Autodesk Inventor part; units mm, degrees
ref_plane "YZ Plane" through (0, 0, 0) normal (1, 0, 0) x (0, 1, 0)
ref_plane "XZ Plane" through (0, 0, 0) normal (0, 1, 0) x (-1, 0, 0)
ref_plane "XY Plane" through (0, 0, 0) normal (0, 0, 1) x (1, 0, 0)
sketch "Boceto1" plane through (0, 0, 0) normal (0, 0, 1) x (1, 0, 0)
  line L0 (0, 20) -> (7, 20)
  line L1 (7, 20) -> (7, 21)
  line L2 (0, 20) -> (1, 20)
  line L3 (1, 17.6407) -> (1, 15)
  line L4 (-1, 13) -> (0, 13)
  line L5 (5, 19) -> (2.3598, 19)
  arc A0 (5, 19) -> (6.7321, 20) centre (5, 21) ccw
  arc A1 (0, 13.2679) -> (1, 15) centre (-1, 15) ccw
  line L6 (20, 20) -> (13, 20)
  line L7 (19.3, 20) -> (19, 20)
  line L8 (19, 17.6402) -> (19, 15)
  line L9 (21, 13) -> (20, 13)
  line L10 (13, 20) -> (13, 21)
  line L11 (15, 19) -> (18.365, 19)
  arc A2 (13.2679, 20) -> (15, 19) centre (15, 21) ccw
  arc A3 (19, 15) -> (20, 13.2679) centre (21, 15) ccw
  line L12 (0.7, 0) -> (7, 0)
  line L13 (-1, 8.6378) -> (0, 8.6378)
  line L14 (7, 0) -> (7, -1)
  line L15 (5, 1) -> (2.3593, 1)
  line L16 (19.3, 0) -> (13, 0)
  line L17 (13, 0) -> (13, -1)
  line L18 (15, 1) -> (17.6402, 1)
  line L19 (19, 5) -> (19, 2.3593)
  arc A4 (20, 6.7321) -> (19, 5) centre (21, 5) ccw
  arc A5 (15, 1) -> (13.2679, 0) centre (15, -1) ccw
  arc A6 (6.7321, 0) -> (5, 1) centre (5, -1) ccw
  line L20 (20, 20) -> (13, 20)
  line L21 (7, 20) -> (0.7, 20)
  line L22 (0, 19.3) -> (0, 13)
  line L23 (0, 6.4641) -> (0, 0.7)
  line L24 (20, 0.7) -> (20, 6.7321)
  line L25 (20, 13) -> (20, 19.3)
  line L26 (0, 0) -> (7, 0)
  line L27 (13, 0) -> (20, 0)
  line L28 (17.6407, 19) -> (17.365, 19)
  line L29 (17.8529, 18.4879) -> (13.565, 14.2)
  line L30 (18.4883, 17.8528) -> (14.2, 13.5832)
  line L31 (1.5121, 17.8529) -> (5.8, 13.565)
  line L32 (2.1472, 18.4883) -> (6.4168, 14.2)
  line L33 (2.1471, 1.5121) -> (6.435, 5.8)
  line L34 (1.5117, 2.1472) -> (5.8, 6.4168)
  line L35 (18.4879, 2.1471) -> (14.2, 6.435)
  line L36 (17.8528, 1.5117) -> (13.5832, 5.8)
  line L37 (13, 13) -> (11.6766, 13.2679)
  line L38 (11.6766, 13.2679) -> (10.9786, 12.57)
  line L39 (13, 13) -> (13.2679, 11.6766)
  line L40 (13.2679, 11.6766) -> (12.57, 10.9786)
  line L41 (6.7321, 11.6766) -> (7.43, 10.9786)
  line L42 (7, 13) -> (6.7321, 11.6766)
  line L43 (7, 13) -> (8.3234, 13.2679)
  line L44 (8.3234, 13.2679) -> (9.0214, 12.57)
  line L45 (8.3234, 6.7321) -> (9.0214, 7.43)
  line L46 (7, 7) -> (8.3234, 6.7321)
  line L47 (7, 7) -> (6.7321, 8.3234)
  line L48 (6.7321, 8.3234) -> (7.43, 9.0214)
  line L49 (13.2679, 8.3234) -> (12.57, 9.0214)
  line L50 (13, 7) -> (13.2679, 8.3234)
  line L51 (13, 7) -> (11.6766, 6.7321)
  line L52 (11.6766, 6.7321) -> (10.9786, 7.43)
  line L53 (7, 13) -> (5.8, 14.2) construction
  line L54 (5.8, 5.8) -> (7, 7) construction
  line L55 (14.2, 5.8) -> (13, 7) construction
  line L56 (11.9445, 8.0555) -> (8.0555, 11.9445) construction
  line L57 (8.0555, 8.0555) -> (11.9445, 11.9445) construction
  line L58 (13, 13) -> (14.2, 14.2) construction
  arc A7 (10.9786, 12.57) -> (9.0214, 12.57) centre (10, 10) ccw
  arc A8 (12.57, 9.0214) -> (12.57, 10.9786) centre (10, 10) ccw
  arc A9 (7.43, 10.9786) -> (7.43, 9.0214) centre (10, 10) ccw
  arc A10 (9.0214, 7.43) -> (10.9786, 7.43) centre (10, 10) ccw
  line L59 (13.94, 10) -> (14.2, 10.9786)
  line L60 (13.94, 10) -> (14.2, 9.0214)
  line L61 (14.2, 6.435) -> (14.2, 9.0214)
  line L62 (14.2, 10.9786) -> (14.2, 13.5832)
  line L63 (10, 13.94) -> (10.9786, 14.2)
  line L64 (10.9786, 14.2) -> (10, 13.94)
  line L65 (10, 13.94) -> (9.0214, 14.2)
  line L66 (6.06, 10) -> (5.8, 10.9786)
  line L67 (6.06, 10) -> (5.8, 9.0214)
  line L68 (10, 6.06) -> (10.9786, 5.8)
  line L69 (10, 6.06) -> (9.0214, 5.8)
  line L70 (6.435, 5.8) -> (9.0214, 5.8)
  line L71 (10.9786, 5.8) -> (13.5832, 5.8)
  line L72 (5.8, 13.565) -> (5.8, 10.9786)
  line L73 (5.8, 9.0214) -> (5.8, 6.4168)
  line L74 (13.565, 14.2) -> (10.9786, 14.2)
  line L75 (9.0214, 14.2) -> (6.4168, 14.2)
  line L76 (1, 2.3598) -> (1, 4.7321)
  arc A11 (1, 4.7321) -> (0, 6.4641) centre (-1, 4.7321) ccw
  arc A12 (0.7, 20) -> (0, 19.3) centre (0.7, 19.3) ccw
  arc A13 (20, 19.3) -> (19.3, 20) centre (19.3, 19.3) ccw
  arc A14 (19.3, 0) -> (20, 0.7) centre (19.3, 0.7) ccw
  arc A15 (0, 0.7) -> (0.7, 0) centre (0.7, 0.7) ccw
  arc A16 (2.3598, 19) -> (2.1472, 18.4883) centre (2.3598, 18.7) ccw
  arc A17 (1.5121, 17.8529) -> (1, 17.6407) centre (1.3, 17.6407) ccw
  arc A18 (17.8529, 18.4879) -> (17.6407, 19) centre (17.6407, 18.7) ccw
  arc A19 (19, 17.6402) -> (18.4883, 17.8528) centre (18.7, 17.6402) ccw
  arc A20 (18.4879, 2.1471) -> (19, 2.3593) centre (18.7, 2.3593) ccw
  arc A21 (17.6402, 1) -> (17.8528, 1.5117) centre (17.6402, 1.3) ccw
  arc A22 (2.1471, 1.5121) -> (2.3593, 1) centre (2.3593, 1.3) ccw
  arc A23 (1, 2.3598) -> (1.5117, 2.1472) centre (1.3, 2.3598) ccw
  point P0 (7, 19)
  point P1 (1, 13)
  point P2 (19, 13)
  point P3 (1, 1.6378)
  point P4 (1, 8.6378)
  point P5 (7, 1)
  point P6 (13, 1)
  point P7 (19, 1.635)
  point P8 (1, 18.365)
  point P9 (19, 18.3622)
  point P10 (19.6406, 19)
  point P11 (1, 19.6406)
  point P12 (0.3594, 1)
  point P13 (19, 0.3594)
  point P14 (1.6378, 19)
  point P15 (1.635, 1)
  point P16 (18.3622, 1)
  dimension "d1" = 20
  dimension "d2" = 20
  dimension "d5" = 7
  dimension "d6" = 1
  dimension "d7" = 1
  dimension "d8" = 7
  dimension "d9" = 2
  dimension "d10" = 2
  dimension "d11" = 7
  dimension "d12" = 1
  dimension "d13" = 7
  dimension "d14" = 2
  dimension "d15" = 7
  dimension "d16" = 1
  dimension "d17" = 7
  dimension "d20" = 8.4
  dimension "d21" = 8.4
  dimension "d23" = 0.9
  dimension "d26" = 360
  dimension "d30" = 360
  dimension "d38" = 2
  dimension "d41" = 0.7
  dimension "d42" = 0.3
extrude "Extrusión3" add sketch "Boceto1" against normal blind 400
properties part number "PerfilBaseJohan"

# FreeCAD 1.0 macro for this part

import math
import FreeCAD as App
import Part
import Sketcher
from FreeCAD import Vector
Q = App.Units.Quantity

doc = App.newDocument("Part")
params = doc.addObject("Spreadsheet::Sheet", "Params")
for row, (alias, value) in enumerate([
    ("sketch1_radius", "2 mm"),
    ("sketch1_radius2", "0.7 mm"),
    ("sketch1_radius3", "0.3 mm"),
    ("sketch1_radius4", "2.75 mm"),
    ("pad1_length", "400 mm"),
], start=1):
    params.set(f"A{row}", alias)
    params.set(f"B{row}", "=" + value)
    params.setAlias(f"B{row}", alias)

body = doc.addObject("PartDesign::Body", "Body")

# Sketch on XY plane
sketch1 = doc.addObject("Sketcher::SketchObject", "Sketch")
body.addObject(sketch1)
sketch1.AttachmentSupport = (doc.XY_Plane, [""])
sketch1.MapMode = "FlatFace"
sketch1.addGeometry([
    Part.LineSegment(Vector(6.73, 20, 0), Vector(0.7, 20, 0)),  # 0
    Part.ArcOfCircle(Part.Circle(Vector(0.7, 19.3, 0), Vector(0, 0, 1), 0.7), math.radians(90), math.radians(180)),  # 1
    Part.LineSegment(Vector(0, 19.3, 0), Vector(0, 13.27, 0)),  # 2
    Part.ArcOfCircle(Part.Circle(Vector(-1, 15, 0), Vector(0, 0, 1), 2), math.radians(-60), math.radians(0)),  # 3
    Part.LineSegment(Vector(1, 15, 0), Vector(1, 17.64, 0)),  # 4
    Part.ArcOfCircle(Part.Circle(Vector(1.3, 17.64, 0), Vector(0, 0, 1), 0.3), math.radians(45), math.radians(180)),  # 5
    Part.LineSegment(Vector(1.51, 17.85, 0), Vector(5.8, 13.56, 0)),  # 6
    Part.LineSegment(Vector(5.8, 13.56, 0), Vector(5.8, 10.98, 0)),  # 7
    Part.LineSegment(Vector(5.8, 10.98, 0), Vector(6.06, 10, 0)),  # 8
    Part.LineSegment(Vector(6.06, 10, 0), Vector(5.8, 9.02, 0)),  # 9
    Part.LineSegment(Vector(5.8, 9.02, 0), Vector(5.8, 6.42, 0)),  # 10
    Part.LineSegment(Vector(5.8, 6.42, 0), Vector(1.51, 2.15, 0)),  # 11
    Part.ArcOfCircle(Part.Circle(Vector(1.3, 2.36, 0), Vector(0, 0, 1), 0.3), math.radians(180), math.radians(315)),  # 12
    Part.LineSegment(Vector(1, 2.36, 0), Vector(1, 4.73, 0)),  # 13
    Part.ArcOfCircle(Part.Circle(Vector(-1, 4.73, 0), Vector(0, 0, 1), 2), math.radians(0), math.radians(60)),  # 14
    Part.LineSegment(Vector(0, 6.46, 0), Vector(0, 0.7, 0)),  # 15
    Part.ArcOfCircle(Part.Circle(Vector(0.7, 0.7, 0), Vector(0, 0, 1), 0.7), math.radians(180), math.radians(270)),  # 16
    Part.LineSegment(Vector(0.7, 0, 0), Vector(6.73, 0, 0)),  # 17
    Part.ArcOfCircle(Part.Circle(Vector(5, -1, 0), Vector(0, 0, 1), 2), math.radians(30), math.radians(90)),  # 18
    Part.LineSegment(Vector(5, 1, 0), Vector(2.36, 1, 0)),  # 19
    Part.ArcOfCircle(Part.Circle(Vector(2.36, 1.3, 0), Vector(0, 0, 1), 0.3), math.radians(135), math.radians(270)),  # 20
    Part.LineSegment(Vector(2.15, 1.51, 0), Vector(6.43, 5.8, 0)),  # 21
    Part.LineSegment(Vector(6.43, 5.8, 0), Vector(9.02, 5.8, 0)),  # 22
    Part.LineSegment(Vector(9.02, 5.8, 0), Vector(10, 6.06, 0)),  # 23
    Part.LineSegment(Vector(10, 6.06, 0), Vector(10.98, 5.8, 0)),  # 24
    Part.LineSegment(Vector(10.98, 5.8, 0), Vector(13.58, 5.8, 0)),  # 25
    Part.LineSegment(Vector(13.58, 5.8, 0), Vector(17.85, 1.51, 0)),  # 26
    Part.ArcOfCircle(Part.Circle(Vector(17.64, 1.3, 0), Vector(0, 0, 1), 0.3), math.radians(-90), math.radians(45)),  # 27
    Part.LineSegment(Vector(17.64, 1, 0), Vector(15, 1, 0)),  # 28
    Part.ArcOfCircle(Part.Circle(Vector(15, -1, 0), Vector(0, 0, 1), 2), math.radians(90), math.radians(150)),  # 29
    Part.LineSegment(Vector(13.27, 0, 0), Vector(19.3, 0, 0)),  # 30
    Part.ArcOfCircle(Part.Circle(Vector(19.3, 0.7, 0), Vector(0, 0, 1), 0.7), math.radians(-90), math.radians(0)),  # 31
    Part.LineSegment(Vector(20, 0.7, 0), Vector(20, 6.73, 0)),  # 32
    Part.ArcOfCircle(Part.Circle(Vector(21, 5, 0), Vector(0, 0, 1), 2), math.radians(120), math.radians(180)),  # 33
    Part.LineSegment(Vector(19, 5, 0), Vector(19, 2.36, 0)),  # 34
    Part.ArcOfCircle(Part.Circle(Vector(18.7, 2.36, 0), Vector(0, 0, 1), 0.3), math.radians(-135), math.radians(0)),  # 35
    Part.LineSegment(Vector(18.49, 2.15, 0), Vector(14.2, 6.43, 0)),  # 36
    Part.LineSegment(Vector(14.2, 6.43, 0), Vector(14.2, 9.02, 0)),  # 37
    Part.LineSegment(Vector(14.2, 9.02, 0), Vector(13.94, 10, 0)),  # 38
    Part.LineSegment(Vector(13.94, 10, 0), Vector(14.2, 10.98, 0)),  # 39
    Part.LineSegment(Vector(14.2, 10.98, 0), Vector(14.2, 13.58, 0)),  # 40
    Part.LineSegment(Vector(14.2, 13.58, 0), Vector(18.49, 17.85, 0)),  # 41
    Part.ArcOfCircle(Part.Circle(Vector(18.7, 17.64, 0), Vector(0, 0, 1), 0.3), math.radians(0), math.radians(135)),  # 42
    Part.LineSegment(Vector(19, 17.64, 0), Vector(19, 15, 0)),  # 43
    Part.ArcOfCircle(Part.Circle(Vector(21, 15, 0), Vector(0, 0, 1), 2), math.radians(180), math.radians(240)),  # 44
    Part.LineSegment(Vector(20, 13.27, 0), Vector(20, 19.3, 0)),  # 45
    Part.ArcOfCircle(Part.Circle(Vector(19.3, 19.3, 0), Vector(0, 0, 1), 0.7), math.radians(0), math.radians(90)),  # 46
    Part.LineSegment(Vector(19.3, 20, 0), Vector(13.27, 20, 0)),  # 47
    Part.ArcOfCircle(Part.Circle(Vector(15, 21, 0), Vector(0, 0, 1), 2), math.radians(-150), math.radians(-90)),  # 48
    Part.LineSegment(Vector(15, 19, 0), Vector(17.64, 19, 0)),  # 49
    Part.ArcOfCircle(Part.Circle(Vector(17.64, 18.7, 0), Vector(0, 0, 1), 0.3), math.radians(-45), math.radians(90)),  # 50
    Part.LineSegment(Vector(17.85, 18.49, 0), Vector(13.56, 14.2, 0)),  # 51
    Part.LineSegment(Vector(13.56, 14.2, 0), Vector(10.98, 14.2, 0)),  # 52
    Part.LineSegment(Vector(10.98, 14.2, 0), Vector(10, 13.94, 0)),  # 53
    Part.LineSegment(Vector(10, 13.94, 0), Vector(9.02, 14.2, 0)),  # 54
    Part.LineSegment(Vector(9.02, 14.2, 0), Vector(6.42, 14.2, 0)),  # 55
    Part.LineSegment(Vector(6.42, 14.2, 0), Vector(2.15, 18.49, 0)),  # 56
    Part.ArcOfCircle(Part.Circle(Vector(2.36, 18.7, 0), Vector(0, 0, 1), 0.3), math.radians(90), math.radians(225)),  # 57
    Part.LineSegment(Vector(2.36, 19, 0), Vector(5, 19, 0)),  # 58
    Part.ArcOfCircle(Part.Circle(Vector(5, 21, 0), Vector(0, 0, 1), 2), math.radians(-90), math.radians(-30)),  # 59
    Part.LineSegment(Vector(11.68, 13.27, 0), Vector(13, 13, 0)),  # 60
    Part.LineSegment(Vector(13, 13, 0), Vector(13.27, 11.68, 0)),  # 61
    Part.LineSegment(Vector(13.27, 11.68, 0), Vector(12.57, 10.98, 0)),  # 62
    Part.ArcOfCircle(Part.Circle(Vector(10, 10, 0), Vector(0, 0, 1), 2.75), math.radians(-21), math.radians(21)),  # 63
    Part.LineSegment(Vector(12.57, 9.02, 0), Vector(13.27, 8.32, 0)),  # 64
    Part.LineSegment(Vector(13.27, 8.32, 0), Vector(13, 7, 0)),  # 65
    Part.LineSegment(Vector(13, 7, 0), Vector(11.68, 6.73, 0)),  # 66
    Part.LineSegment(Vector(11.68, 6.73, 0), Vector(10.98, 7.43, 0)),  # 67
    Part.ArcOfCircle(Part.Circle(Vector(10, 10, 0), Vector(0, 0, 1), 2.75), math.radians(-111), math.radians(-69)),  # 68
    Part.LineSegment(Vector(9.02, 7.43, 0), Vector(8.32, 6.73, 0)),  # 69
    Part.LineSegment(Vector(8.32, 6.73, 0), Vector(7, 7, 0)),  # 70
    Part.LineSegment(Vector(7, 7, 0), Vector(6.73, 8.32, 0)),  # 71
    Part.LineSegment(Vector(6.73, 8.32, 0), Vector(7.43, 9.02, 0)),  # 72
    Part.ArcOfCircle(Part.Circle(Vector(10, 10, 0), Vector(0, 0, 1), 2.75), math.radians(159), math.radians(201)),  # 73
    Part.LineSegment(Vector(7.43, 10.98, 0), Vector(6.73, 11.68, 0)),  # 74
    Part.LineSegment(Vector(6.73, 11.68, 0), Vector(7, 13, 0)),  # 75
    Part.LineSegment(Vector(7, 13, 0), Vector(8.32, 13.27, 0)),  # 76
    Part.LineSegment(Vector(8.32, 13.27, 0), Vector(9.02, 12.57, 0)),  # 77
    Part.ArcOfCircle(Part.Circle(Vector(10, 10, 0), Vector(0, 0, 1), 2.75), math.radians(69), math.radians(111)),  # 78
    Part.LineSegment(Vector(10.98, 12.57, 0), Vector(11.68, 13.27, 0)),  # 79
], False)
sketch1.addConstraint([
    Sketcher.Constraint("Tangent", 0, 2, 1, 1),
    Sketcher.Constraint("Tangent", 1, 2, 2, 1),
    Sketcher.Constraint("Coincident", 2, 2, 3, 1),
    Sketcher.Constraint("Tangent", 3, 2, 4, 1),
    Sketcher.Constraint("Tangent", 4, 2, 5, 2),
    Sketcher.Constraint("Tangent", 5, 1, 6, 1),
    Sketcher.Constraint("Coincident", 6, 2, 7, 1),
    Sketcher.Constraint("Coincident", 7, 2, 8, 1),
    Sketcher.Constraint("Coincident", 8, 2, 9, 1),
    Sketcher.Constraint("Coincident", 9, 2, 10, 1),
    Sketcher.Constraint("Coincident", 10, 2, 11, 1),
    Sketcher.Constraint("Tangent", 11, 2, 12, 2),
    Sketcher.Constraint("Tangent", 12, 1, 13, 1),
    Sketcher.Constraint("Tangent", 13, 2, 14, 1),
    Sketcher.Constraint("Coincident", 14, 2, 15, 1),
    Sketcher.Constraint("Tangent", 15, 2, 16, 1),
    Sketcher.Constraint("Tangent", 16, 2, 17, 1),
    Sketcher.Constraint("Coincident", 17, 2, 18, 1),
    Sketcher.Constraint("Tangent", 18, 2, 19, 1),
    Sketcher.Constraint("Tangent", 19, 2, 20, 2),
    Sketcher.Constraint("Tangent", 20, 1, 21, 1),
    Sketcher.Constraint("Coincident", 21, 2, 22, 1),
    Sketcher.Constraint("Coincident", 22, 2, 23, 1),
    Sketcher.Constraint("Coincident", 23, 2, 24, 1),
    Sketcher.Constraint("Coincident", 24, 2, 25, 1),
    Sketcher.Constraint("Coincident", 25, 2, 26, 1),
    Sketcher.Constraint("Tangent", 26, 2, 27, 2),
    Sketcher.Constraint("Tangent", 27, 1, 28, 1),
    Sketcher.Constraint("Tangent", 28, 2, 29, 1),
    Sketcher.Constraint("Coincident", 29, 2, 30, 1),
    Sketcher.Constraint("Tangent", 30, 2, 31, 1),
    Sketcher.Constraint("Tangent", 31, 2, 32, 1),
    Sketcher.Constraint("Coincident", 32, 2, 33, 1),
    Sketcher.Constraint("Tangent", 33, 2, 34, 1),
    Sketcher.Constraint("Tangent", 34, 2, 35, 2),
    Sketcher.Constraint("Tangent", 35, 1, 36, 1),
    Sketcher.Constraint("Coincident", 36, 2, 37, 1),
    Sketcher.Constraint("Coincident", 37, 2, 38, 1),
    Sketcher.Constraint("Coincident", 38, 2, 39, 1),
    Sketcher.Constraint("Coincident", 39, 2, 40, 1),
    Sketcher.Constraint("Coincident", 40, 2, 41, 1),
    Sketcher.Constraint("Tangent", 41, 2, 42, 2),
    Sketcher.Constraint("Tangent", 42, 1, 43, 1),
    Sketcher.Constraint("Tangent", 43, 2, 44, 1),
    Sketcher.Constraint("Coincident", 44, 2, 45, 1),
    Sketcher.Constraint("Tangent", 45, 2, 46, 1),
    Sketcher.Constraint("Tangent", 46, 2, 47, 1),
    Sketcher.Constraint("Coincident", 47, 2, 48, 1),
    Sketcher.Constraint("Tangent", 48, 2, 49, 1),
    Sketcher.Constraint("Tangent", 49, 2, 50, 2),
    Sketcher.Constraint("Tangent", 50, 1, 51, 1),
    Sketcher.Constraint("Coincident", 51, 2, 52, 1),
    Sketcher.Constraint("Coincident", 52, 2, 53, 1),
    Sketcher.Constraint("Coincident", 53, 2, 54, 1),
    Sketcher.Constraint("Coincident", 54, 2, 55, 1),
    Sketcher.Constraint("Coincident", 55, 2, 56, 1),
    Sketcher.Constraint("Tangent", 56, 2, 57, 2),
    Sketcher.Constraint("Tangent", 57, 1, 58, 1),
    Sketcher.Constraint("Tangent", 58, 2, 59, 1),
    Sketcher.Constraint("Coincident", 59, 2, 0, 1),
    Sketcher.Constraint("Coincident", 60, 2, 61, 1),
    Sketcher.Constraint("Coincident", 61, 2, 62, 1),
    Sketcher.Constraint("Coincident", 62, 2, 63, 2),
    Sketcher.Constraint("Coincident", 63, 1, 64, 1),
    Sketcher.Constraint("Coincident", 64, 2, 65, 1),
    Sketcher.Constraint("Coincident", 65, 2, 66, 1),
    Sketcher.Constraint("Coincident", 66, 2, 67, 1),
    Sketcher.Constraint("Coincident", 67, 2, 68, 2),
    Sketcher.Constraint("Coincident", 68, 1, 69, 1),
    Sketcher.Constraint("Coincident", 69, 2, 70, 1),
    Sketcher.Constraint("Coincident", 70, 2, 71, 1),
    Sketcher.Constraint("Coincident", 71, 2, 72, 1),
    Sketcher.Constraint("Coincident", 72, 2, 73, 2),
    Sketcher.Constraint("Coincident", 73, 1, 74, 1),
    Sketcher.Constraint("Coincident", 74, 2, 75, 1),
    Sketcher.Constraint("Coincident", 75, 2, 76, 1),
    Sketcher.Constraint("Coincident", 76, 2, 77, 1),
    Sketcher.Constraint("Coincident", 77, 2, 78, 2),
    Sketcher.Constraint("Coincident", 78, 1, 79, 1),
    Sketcher.Constraint("Coincident", 79, 2, 60, 1),
    Sketcher.Constraint("Horizontal", 0),
    Sketcher.Constraint("Vertical", 2),
    Sketcher.Constraint("Vertical", 4),
    Sketcher.Constraint("Vertical", 7),
    Sketcher.Constraint("Vertical", 10),
    Sketcher.Constraint("Vertical", 13),
    Sketcher.Constraint("Vertical", 15),
    Sketcher.Constraint("Horizontal", 17),
    Sketcher.Constraint("Horizontal", 19),
    Sketcher.Constraint("Horizontal", 22),
    Sketcher.Constraint("Horizontal", 25),
    Sketcher.Constraint("Horizontal", 28),
    Sketcher.Constraint("Horizontal", 30),
    Sketcher.Constraint("Vertical", 32),
    Sketcher.Constraint("Vertical", 34),
    Sketcher.Constraint("Vertical", 37),
    Sketcher.Constraint("Vertical", 40),
    Sketcher.Constraint("Vertical", 43),
    Sketcher.Constraint("Vertical", 45),
    Sketcher.Constraint("Horizontal", 47),
    Sketcher.Constraint("Horizontal", 49),
    Sketcher.Constraint("Horizontal", 52),
    Sketcher.Constraint("Horizontal", 55),
    Sketcher.Constraint("Horizontal", 58),
    Sketcher.Constraint("Coincident", 68, 3, 63, 3),
    Sketcher.Constraint("Coincident", 73, 3, 63, 3),
    Sketcher.Constraint("Coincident", 78, 3, 63, 3),
    Sketcher.Constraint("Equal", 5, 12),
    Sketcher.Constraint("Equal", 3, 14),
    Sketcher.Constraint("Equal", 1, 16),
    Sketcher.Constraint("Equal", 14, 18),
    Sketcher.Constraint("Equal", 12, 20),
    Sketcher.Constraint("Equal", 20, 27),
    Sketcher.Constraint("Equal", 18, 29),
    Sketcher.Constraint("Equal", 16, 31),
    Sketcher.Constraint("Equal", 29, 33),
    Sketcher.Constraint("Equal", 27, 35),
    Sketcher.Constraint("Equal", 35, 42),
    Sketcher.Constraint("Equal", 33, 44),
    Sketcher.Constraint("Equal", 31, 46),
    Sketcher.Constraint("Equal", 44, 48),
    Sketcher.Constraint("Equal", 42, 50),
    Sketcher.Constraint("Equal", 50, 57),
    Sketcher.Constraint("Equal", 48, 59),
    Sketcher.Constraint("Equal", 63, 68),
    Sketcher.Constraint("Equal", 68, 73),
    Sketcher.Constraint("Equal", 73, 78),
    Sketcher.Constraint("PointOnObject", 1, 2, -2),
    Sketcher.Constraint("PointOnObject", 14, 2, -2),
    Sketcher.Constraint("PointOnObject", 16, 2, -1),
    Sketcher.Constraint("PointOnObject", 29, 2, -1),
    Sketcher.Constraint("Perpendicular", 6, 21),
    Sketcher.Constraint("Perpendicular", 8, 23),
    Sketcher.Constraint("Perpendicular", 9, 24),
    Sketcher.Constraint("Perpendicular", 11, 26),
    Sketcher.Constraint("Perpendicular", 21, 36),
    Sketcher.Constraint("Perpendicular", 23, 38),
    Sketcher.Constraint("Perpendicular", 24, 39),
    Sketcher.Constraint("Perpendicular", 26, 41),
    Sketcher.Constraint("Perpendicular", 36, 51),
    Sketcher.Constraint("Perpendicular", 38, 53),
    Sketcher.Constraint("Perpendicular", 39, 54),
    Sketcher.Constraint("Perpendicular", 41, 56),
    Sketcher.Constraint("Parallel", 51, 62),
    Sketcher.Constraint("Perpendicular", 62, 64),
    Sketcher.Constraint("Perpendicular", 60, 65),
    Sketcher.Constraint("Perpendicular", 61, 66),
    Sketcher.Constraint("Parallel", 64, 67),
    Sketcher.Constraint("Perpendicular", 67, 69),
    Sketcher.Constraint("Perpendicular", 65, 70),
    Sketcher.Constraint("Perpendicular", 66, 71),
    Sketcher.Constraint("Parallel", 69, 72),
    Sketcher.Constraint("Perpendicular", 72, 74),
    Sketcher.Constraint("Perpendicular", 70, 75),
    Sketcher.Constraint("Perpendicular", 71, 76),
    Sketcher.Constraint("Parallel", 74, 77),
    Sketcher.Constraint("Perpendicular", 77, 79),
    Sketcher.Constraint("Horizontal", 20, 3, 27, 3),
    Sketcher.Constraint("Horizontal", 3, 3, 44, 3),
    Sketcher.Constraint("Horizontal", 1, 3, 46, 3),
    Sketcher.Constraint("Horizontal", 50, 3, 57, 3),
    Sketcher.Constraint("Horizontal", 78, 3, 8, 2),
    Sketcher.Constraint("Horizontal", 22, 2, 24, 2),
    Sketcher.Constraint("Horizontal", 11, 2, 35, 1),
    Sketcher.Constraint("Horizontal", 9, 2, 37, 2),
    Sketcher.Constraint("Horizontal", 8, 2, 38, 2),
    Sketcher.Constraint("Horizontal", 7, 2, 39, 2),
    Sketcher.Constraint("Horizontal", 5, 1, 41, 2),
    Sketcher.Constraint("Horizontal", 2, 2, 44, 2),
    Sketcher.Constraint("Horizontal", 52, 2, 54, 2),
    Sketcher.Constraint("Horizontal", 39, 2, 62, 2),
    Sketcher.Constraint("Horizontal", 37, 2, 63, 1),
    Sketcher.Constraint("Horizontal", 32, 2, 66, 2),
    Sketcher.Constraint("Horizontal", 67, 2, 68, 1),
    Sketcher.Constraint("Horizontal", 66, 2, 69, 2),
    Sketcher.Constraint("Horizontal", 65, 2, 70, 2),
    Sketcher.Constraint("Horizontal", 64, 2, 71, 2),
    Sketcher.Constraint("Horizontal", 63, 1, 72, 2),
    Sketcher.Constraint("Horizontal", 62, 2, 73, 1),
    Sketcher.Constraint("Horizontal", 61, 2, 74, 2),
    Sketcher.Constraint("Horizontal", 60, 2, 75, 2),
    Sketcher.Constraint("Horizontal", 44, 2, 76, 2),
    Sketcher.Constraint("Horizontal", 77, 2, 78, 1),
    Sketcher.Constraint("Vertical", 5, 3, 12, 3),
    Sketcher.Constraint("Vertical", 35, 3, 42, 3),
    Sketcher.Constraint("Vertical", 31, 3, 46, 3),
    Sketcher.Constraint("Vertical", 29, 3, 48, 3),
    Sketcher.Constraint("Vertical", 18, 3, 59, 3),
    Sketcher.Constraint("Vertical", 7, 2, 9, 2),
    Sketcher.Constraint("Vertical", 78, 3, 23, 2),
    Sketcher.Constraint("Vertical", 37, 2, 39, 2),
    Sketcher.Constraint("Vertical", 29, 2, 47, 2),
    Sketcher.Constraint("Vertical", 26, 2, 50, 1),
    Sketcher.Constraint("Vertical", 24, 2, 52, 2),
    Sketcher.Constraint("Vertical", 23, 2, 53, 2),
    Sketcher.Constraint("Vertical", 20, 1, 56, 2),
    Sketcher.Constraint("Vertical", 47, 2, 61, 2),
    Sketcher.Constraint("Vertical", 61, 2, 64, 2),
    Sketcher.Constraint("Vertical", 60, 2, 65, 2),
    Sketcher.Constraint("Vertical", 52, 2, 67, 2),
    Sketcher.Constraint("Vertical", 59, 2, 71, 2),
    Sketcher.Constraint("Vertical", 71, 2, 74, 2),
    Sketcher.Constraint("Vertical", 69, 2, 76, 2),
    Sketcher.Constraint("Equal", 17, 30),
    Sketcher.Constraint("Equal", 19, 49),
    Sketcher.Constraint("Equal", 22, 52),
    Sketcher.Constraint("Equal", 47, 2),
    Sketcher.Constraint("Equal", 49, 4),
    Sketcher.Constraint("Equal", 52, 7),
    Sketcher.Constraint("Equal", 55, 10),
    Sketcher.Constraint("Equal", 2, 32),
    Sketcher.Constraint("Equal", 7, 37),
    Sketcher.Constraint("Equal", 6, 21),
    Sketcher.Constraint("Equal", 9, 23),
    Sketcher.Constraint("Equal", 60, 61),
    Sketcher.Constraint("Radius", 3, 2.0),
    Sketcher.Constraint("Radius", 1, 0.7),
    Sketcher.Constraint("Radius", 5, 0.3),
    Sketcher.Constraint("DistanceX", 3, 3, -1, 1, 1.0),
    Sketcher.Constraint("DistanceY", -1, 1, 0, 2, 20.0),
    Sketcher.Constraint("DistanceY", -1, 1, 65, 2, 7.0),
    Sketcher.Constraint("Radius", 63, 2.75),
    Sketcher.Constraint("DistanceY", -1, 1, 3, 3, 15.0),
    Sketcher.Constraint("DistanceX", -1, 1, 6, 2, 5.8),
    Sketcher.Constraint("Angle", 8, Q("-75.121 deg")),
    Sketcher.Constraint("DistanceY", 15, 2, 15, 1, 5.764),
    Sketcher.Constraint("DistanceX", -1, 1, 8, 2, 6.06),
    Sketcher.Constraint("DistanceX", 19, 2, 19, 1, 2.6407),
    Sketcher.Constraint("DistanceX", 25, 1, 25, 2, 2.6046),
])
sketch1.setExpression("Constraints[215]", "Params.sketch1_radius")
sketch1.setExpression("Constraints[216]", "Params.sketch1_radius2")
sketch1.setExpression("Constraints[217]", "Params.sketch1_radius3")
sketch1.setExpression("Constraints[221]", "Params.sketch1_radius4")
pad1 = doc.addObject("PartDesign::Pad", "Pad")
body.addObject(pad1)
pad1.Profile = sketch1
pad1.setExpression("Length", "Params.pad1_length")
pad1.Reversed = True

doc.recompute()
